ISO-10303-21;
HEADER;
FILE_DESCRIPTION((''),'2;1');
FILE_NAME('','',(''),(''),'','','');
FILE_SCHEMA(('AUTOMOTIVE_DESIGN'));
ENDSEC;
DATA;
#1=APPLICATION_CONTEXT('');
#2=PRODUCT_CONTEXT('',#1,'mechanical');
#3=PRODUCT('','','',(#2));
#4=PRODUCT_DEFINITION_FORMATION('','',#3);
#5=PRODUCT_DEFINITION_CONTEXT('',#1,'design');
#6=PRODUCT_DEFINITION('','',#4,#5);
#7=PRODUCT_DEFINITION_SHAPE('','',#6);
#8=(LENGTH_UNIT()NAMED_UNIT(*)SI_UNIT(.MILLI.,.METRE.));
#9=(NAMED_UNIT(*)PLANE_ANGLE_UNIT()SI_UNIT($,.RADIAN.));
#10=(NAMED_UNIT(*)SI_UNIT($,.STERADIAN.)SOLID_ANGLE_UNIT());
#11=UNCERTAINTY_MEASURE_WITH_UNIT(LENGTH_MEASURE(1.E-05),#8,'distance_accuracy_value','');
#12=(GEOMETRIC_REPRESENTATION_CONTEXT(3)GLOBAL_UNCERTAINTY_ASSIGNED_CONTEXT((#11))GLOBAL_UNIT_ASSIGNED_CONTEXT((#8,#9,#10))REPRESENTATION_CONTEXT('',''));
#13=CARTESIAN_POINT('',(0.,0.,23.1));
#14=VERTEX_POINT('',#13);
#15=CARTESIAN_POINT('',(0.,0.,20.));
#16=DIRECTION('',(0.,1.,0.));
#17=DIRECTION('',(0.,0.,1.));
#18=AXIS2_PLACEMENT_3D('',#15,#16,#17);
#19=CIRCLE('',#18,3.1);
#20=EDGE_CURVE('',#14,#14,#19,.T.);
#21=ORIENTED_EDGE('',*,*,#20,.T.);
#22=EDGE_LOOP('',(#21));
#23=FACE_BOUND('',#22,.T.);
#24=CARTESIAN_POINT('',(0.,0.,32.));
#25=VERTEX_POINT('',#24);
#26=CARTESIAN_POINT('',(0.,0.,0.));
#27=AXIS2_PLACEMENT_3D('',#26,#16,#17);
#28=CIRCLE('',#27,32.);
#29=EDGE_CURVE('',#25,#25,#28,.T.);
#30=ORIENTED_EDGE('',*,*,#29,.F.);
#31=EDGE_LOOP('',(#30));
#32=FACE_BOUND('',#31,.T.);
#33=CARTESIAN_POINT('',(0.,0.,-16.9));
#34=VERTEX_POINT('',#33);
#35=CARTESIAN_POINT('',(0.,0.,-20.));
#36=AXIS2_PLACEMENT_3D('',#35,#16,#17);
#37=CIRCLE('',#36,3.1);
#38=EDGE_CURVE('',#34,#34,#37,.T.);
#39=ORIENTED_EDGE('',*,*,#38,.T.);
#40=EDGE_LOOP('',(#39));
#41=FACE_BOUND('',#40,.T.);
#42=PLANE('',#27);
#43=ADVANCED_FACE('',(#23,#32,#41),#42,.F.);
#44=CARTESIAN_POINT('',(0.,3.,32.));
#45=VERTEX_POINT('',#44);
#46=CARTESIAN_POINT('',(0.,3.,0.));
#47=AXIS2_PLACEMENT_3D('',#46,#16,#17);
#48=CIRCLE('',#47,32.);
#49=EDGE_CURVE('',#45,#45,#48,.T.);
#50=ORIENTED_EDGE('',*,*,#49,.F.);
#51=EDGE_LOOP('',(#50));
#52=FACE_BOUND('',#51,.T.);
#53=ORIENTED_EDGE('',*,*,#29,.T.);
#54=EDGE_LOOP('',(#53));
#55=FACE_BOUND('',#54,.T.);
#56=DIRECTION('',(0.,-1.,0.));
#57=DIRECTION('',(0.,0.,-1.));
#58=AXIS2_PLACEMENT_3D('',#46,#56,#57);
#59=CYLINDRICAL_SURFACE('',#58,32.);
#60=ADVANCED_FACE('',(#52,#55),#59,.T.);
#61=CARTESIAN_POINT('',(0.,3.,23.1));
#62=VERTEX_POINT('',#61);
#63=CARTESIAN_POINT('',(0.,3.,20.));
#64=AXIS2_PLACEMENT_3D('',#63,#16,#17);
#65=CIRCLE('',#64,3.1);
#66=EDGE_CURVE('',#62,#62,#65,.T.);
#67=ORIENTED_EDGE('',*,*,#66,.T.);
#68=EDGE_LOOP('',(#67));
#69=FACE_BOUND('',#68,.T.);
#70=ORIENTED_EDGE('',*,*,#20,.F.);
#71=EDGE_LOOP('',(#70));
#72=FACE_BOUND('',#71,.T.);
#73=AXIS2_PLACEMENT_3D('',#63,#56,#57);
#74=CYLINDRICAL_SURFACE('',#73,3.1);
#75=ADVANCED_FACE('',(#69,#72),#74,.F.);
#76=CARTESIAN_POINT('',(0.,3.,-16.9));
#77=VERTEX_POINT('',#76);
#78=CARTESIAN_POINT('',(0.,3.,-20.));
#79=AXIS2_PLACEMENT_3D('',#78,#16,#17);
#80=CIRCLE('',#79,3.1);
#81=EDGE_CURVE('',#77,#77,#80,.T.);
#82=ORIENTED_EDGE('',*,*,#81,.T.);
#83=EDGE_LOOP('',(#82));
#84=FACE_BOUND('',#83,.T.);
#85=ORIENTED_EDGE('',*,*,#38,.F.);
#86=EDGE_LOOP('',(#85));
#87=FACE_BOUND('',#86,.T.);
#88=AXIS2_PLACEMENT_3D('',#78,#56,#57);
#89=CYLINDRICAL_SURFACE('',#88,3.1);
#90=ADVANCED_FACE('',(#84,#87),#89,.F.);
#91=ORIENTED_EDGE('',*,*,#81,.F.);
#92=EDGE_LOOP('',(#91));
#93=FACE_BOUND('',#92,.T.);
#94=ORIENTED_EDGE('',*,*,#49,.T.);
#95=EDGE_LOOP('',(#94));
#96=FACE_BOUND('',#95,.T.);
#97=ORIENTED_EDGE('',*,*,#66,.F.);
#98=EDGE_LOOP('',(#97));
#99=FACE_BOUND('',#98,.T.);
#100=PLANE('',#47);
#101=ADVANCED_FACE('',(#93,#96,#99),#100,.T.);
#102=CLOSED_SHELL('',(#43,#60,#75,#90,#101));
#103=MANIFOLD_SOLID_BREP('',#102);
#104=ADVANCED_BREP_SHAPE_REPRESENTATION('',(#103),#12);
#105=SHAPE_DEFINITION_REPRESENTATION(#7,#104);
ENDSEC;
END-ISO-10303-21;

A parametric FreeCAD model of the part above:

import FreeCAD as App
import Part
import Sketcher
from FreeCAD import Vector

doc = App.newDocument("Part")
params = doc.addObject("Spreadsheet::Sheet", "Params")
for row, (alias, value) in enumerate([
    ("sketch1_diameter", "64 mm"),
    ("sketch1_diameter2", "6.2 mm"),
    ("pad1_length", "3 mm"),
], start=1):
    params.set(f"A{row}", alias)
    params.set(f"B{row}", "=" + value)
    params.setAlias(f"B{row}", alias)

body = doc.addObject("PartDesign::Body", "Body")

# Sketch on XZ plane
sketch1 = body.newObject("Sketcher::SketchObject", "Sketch")
sketch1.AttachmentSupport = (doc.getObject("XZ_Plane"), [""])
sketch1.MapMode = "FlatFace"
sketch1.addGeometry([
    Part.Circle(Vector(0, 0, 0), Vector(0, 0, 1), 32),
    Part.Circle(Vector(0, -20, 0), Vector(0, 0, 1), 3.1),
    Part.Circle(Vector(0, 20, 0), Vector(0, 0, 1), 3.1),
], False)
sketch1.addConstraint([
    Sketcher.Constraint("Coincident", 0, 3, -1, 1),
    Sketcher.Constraint("Equal", 1, 2),
    Sketcher.Constraint("Symmetric", 1, 3, 2, 3, -1, 1),
    Sketcher.Constraint("PointOnObject", 1, 3, -2),
    Sketcher.Constraint("Diameter", 0, 64.0),
    Sketcher.Constraint("Diameter", 1, 6.2),
    Sketcher.Constraint("DistanceY", 1, 3, -1, 1, 20.0),
])
sketch1.setExpression("Constraints[4]", "Params.sketch1_diameter")
sketch1.setExpression("Constraints[5]", "Params.sketch1_diameter2")
pad1 = body.newObject("PartDesign::Pad", "Pad")
pad1.Profile = sketch1
pad1.setExpression("Length", "Params.pad1_length")
pad1.Reversed = True

doc.recompute()
